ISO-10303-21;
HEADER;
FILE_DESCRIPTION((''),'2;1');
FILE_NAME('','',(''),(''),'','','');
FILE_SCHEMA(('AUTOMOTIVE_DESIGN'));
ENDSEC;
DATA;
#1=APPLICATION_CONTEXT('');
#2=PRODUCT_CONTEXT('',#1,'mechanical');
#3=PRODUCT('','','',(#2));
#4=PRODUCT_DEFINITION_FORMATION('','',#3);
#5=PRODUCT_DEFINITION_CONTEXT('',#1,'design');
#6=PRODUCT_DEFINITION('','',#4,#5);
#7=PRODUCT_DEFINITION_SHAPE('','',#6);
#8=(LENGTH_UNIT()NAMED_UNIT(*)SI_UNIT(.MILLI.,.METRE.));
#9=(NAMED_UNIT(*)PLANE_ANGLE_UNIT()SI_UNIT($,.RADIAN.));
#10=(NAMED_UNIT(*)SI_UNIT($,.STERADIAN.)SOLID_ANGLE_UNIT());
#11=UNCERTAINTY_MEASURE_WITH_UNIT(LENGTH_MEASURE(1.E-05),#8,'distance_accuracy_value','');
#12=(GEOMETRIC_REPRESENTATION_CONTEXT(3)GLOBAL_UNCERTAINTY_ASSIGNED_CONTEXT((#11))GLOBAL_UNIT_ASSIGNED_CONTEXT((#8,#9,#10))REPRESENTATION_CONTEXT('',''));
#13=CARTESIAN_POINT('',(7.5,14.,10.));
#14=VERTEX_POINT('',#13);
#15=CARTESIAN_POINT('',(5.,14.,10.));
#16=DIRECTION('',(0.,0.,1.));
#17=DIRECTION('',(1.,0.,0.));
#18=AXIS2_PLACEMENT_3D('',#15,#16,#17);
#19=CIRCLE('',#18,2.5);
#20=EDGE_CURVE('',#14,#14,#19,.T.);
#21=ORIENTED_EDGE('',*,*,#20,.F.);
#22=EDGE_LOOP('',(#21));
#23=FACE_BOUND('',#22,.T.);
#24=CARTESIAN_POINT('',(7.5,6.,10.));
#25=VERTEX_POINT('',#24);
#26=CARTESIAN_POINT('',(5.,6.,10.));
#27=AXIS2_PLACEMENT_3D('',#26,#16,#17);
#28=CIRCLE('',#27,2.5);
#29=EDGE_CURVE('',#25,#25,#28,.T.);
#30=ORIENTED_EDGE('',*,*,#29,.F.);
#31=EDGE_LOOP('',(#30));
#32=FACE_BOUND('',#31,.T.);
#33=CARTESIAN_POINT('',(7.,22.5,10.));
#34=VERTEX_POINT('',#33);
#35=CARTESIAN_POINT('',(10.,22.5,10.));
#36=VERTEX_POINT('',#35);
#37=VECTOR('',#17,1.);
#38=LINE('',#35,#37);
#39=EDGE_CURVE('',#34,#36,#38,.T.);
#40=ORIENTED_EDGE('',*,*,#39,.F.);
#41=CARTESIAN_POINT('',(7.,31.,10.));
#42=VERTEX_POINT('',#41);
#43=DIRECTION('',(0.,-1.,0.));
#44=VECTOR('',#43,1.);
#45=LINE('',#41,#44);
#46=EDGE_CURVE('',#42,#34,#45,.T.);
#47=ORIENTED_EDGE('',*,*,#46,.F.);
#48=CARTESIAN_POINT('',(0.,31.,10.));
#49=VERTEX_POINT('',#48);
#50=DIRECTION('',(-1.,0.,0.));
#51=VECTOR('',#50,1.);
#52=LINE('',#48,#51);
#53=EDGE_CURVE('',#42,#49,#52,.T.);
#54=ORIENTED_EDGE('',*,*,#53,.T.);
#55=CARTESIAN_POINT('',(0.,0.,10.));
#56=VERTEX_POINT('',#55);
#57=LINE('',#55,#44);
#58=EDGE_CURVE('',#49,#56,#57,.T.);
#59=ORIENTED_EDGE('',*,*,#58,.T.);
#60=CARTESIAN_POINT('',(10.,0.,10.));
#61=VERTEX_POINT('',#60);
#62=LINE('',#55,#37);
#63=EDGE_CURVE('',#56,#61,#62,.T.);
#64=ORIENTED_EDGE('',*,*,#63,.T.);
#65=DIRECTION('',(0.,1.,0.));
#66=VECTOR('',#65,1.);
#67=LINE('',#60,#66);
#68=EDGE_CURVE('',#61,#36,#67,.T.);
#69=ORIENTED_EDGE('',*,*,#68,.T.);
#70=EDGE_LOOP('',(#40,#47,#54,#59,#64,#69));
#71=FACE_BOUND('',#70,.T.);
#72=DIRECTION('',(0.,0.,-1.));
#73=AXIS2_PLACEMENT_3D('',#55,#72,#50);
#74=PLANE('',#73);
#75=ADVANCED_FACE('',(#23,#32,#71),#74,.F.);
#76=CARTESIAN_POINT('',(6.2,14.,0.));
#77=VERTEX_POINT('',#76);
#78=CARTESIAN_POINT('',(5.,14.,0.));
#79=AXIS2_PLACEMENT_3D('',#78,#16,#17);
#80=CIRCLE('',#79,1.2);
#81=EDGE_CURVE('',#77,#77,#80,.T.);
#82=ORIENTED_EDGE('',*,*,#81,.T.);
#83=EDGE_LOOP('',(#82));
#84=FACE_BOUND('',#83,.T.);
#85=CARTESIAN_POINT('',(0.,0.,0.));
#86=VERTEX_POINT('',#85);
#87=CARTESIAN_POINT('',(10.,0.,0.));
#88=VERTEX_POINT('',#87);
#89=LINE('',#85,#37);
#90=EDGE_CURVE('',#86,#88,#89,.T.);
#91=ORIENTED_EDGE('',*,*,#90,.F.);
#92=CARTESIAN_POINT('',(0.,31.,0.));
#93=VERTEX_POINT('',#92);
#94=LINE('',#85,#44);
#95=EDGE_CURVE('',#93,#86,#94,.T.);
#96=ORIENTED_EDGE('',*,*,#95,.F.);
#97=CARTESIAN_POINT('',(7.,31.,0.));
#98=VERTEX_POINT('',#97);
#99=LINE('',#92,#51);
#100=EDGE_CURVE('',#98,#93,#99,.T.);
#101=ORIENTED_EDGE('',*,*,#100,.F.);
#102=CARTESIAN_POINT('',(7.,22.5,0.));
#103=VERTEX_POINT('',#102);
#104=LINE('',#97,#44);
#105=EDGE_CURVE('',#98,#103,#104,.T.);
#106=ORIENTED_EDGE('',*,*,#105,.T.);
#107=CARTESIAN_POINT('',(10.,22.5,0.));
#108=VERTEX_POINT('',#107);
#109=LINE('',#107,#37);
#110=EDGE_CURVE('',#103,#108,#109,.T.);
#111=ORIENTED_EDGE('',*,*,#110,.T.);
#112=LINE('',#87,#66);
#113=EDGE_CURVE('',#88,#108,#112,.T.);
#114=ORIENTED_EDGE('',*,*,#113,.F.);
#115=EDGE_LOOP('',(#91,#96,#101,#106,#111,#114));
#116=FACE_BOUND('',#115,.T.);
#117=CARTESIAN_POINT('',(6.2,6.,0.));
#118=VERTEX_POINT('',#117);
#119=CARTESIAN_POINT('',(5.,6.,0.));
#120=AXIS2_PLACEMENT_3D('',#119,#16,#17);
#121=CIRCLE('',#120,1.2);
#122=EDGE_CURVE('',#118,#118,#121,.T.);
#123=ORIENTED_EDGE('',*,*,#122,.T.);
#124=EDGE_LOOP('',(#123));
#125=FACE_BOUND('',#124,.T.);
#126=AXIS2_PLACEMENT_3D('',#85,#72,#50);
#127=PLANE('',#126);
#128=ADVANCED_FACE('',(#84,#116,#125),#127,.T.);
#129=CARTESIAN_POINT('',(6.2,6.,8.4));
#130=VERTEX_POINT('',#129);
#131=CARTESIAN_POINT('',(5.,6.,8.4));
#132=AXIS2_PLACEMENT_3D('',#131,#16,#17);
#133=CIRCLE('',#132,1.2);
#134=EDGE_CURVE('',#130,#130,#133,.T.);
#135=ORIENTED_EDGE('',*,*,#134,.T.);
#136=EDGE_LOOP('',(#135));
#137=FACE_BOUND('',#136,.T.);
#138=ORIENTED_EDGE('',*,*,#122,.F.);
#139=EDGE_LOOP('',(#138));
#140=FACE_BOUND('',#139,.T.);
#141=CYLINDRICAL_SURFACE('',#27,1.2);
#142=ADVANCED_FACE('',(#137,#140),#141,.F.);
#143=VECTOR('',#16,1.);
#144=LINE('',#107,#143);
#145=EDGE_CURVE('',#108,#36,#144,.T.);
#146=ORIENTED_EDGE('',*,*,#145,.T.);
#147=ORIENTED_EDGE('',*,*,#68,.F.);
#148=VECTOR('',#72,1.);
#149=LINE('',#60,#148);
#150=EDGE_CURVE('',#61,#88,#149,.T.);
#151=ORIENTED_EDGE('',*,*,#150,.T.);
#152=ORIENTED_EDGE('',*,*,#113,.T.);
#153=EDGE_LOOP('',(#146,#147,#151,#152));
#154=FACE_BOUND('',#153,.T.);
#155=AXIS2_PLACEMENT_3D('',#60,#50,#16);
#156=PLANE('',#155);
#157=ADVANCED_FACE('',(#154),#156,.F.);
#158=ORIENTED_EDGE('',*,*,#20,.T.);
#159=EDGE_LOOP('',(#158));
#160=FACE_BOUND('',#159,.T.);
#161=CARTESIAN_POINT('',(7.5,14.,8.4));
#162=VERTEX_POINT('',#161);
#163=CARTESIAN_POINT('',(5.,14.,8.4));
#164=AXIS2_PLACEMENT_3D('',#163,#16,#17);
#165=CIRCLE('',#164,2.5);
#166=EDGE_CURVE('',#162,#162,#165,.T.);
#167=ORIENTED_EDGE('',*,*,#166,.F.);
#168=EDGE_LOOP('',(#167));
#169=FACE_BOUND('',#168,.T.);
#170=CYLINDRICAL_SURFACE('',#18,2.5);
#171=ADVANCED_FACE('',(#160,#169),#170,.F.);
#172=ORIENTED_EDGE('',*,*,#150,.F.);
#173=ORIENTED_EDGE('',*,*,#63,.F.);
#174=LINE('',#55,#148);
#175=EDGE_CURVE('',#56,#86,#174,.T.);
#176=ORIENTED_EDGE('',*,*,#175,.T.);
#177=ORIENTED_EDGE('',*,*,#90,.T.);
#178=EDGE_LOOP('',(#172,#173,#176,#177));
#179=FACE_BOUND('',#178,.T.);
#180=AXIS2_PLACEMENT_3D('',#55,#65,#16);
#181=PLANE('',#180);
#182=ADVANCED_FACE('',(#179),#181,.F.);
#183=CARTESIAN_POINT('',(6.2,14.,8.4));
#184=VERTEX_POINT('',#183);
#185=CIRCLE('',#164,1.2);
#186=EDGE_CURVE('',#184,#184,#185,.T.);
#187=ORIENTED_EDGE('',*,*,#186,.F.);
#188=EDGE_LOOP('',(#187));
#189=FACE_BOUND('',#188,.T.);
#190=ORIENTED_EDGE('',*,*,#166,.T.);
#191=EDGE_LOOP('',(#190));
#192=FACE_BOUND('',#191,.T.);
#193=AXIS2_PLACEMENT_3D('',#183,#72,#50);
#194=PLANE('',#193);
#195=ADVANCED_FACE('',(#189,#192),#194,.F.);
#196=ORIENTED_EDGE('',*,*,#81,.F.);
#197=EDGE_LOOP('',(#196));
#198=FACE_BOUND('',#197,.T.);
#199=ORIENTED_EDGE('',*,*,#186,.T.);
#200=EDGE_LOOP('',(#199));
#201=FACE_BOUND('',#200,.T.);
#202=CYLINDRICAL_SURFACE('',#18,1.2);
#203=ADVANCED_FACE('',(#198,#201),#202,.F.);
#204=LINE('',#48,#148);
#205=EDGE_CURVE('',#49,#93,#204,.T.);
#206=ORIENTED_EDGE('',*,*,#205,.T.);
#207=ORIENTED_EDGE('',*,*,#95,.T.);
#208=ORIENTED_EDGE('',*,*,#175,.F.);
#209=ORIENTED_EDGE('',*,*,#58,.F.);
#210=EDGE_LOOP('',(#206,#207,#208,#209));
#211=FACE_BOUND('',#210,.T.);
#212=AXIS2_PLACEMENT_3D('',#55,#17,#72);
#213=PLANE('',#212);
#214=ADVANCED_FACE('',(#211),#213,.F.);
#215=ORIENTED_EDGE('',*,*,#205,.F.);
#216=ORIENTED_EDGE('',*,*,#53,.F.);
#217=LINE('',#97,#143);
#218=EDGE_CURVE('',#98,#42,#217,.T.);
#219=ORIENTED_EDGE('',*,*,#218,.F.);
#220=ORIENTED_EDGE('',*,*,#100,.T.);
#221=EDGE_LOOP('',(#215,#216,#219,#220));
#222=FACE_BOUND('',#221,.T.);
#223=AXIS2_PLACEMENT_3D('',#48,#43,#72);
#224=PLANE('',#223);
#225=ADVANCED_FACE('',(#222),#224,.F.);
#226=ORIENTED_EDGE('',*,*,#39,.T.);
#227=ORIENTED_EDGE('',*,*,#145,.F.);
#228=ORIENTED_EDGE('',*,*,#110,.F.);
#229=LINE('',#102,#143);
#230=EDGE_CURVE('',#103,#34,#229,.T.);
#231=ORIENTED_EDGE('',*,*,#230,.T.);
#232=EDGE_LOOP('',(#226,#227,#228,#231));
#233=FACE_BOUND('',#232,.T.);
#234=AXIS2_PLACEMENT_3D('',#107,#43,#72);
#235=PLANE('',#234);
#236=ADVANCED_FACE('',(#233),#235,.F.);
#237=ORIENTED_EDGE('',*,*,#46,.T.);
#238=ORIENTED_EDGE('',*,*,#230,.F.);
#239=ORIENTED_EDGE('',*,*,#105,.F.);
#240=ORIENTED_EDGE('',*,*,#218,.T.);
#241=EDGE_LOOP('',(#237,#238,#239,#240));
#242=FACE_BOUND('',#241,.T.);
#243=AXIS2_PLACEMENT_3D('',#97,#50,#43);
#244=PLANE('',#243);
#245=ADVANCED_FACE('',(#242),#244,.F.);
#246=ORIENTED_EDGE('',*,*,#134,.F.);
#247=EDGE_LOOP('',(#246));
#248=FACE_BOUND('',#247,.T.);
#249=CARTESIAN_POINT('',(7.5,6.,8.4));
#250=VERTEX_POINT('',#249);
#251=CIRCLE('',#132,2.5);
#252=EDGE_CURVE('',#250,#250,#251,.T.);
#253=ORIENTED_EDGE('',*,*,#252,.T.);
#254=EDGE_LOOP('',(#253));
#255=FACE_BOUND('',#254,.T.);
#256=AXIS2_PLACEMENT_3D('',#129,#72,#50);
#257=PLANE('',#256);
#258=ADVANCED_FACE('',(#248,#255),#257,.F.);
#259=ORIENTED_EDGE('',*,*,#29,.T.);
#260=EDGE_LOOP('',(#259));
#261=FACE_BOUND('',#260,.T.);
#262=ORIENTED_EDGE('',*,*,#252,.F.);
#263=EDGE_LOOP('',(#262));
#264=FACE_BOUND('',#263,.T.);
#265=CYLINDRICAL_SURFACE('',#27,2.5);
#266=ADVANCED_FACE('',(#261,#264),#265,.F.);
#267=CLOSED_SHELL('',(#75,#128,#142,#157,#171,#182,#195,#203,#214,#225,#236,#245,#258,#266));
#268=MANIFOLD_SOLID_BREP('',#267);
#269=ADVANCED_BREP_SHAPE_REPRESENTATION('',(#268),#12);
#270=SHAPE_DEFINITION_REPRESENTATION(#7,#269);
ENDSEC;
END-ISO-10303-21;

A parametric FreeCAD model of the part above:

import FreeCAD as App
import Part
import Sketcher
from FreeCAD import Vector

doc = App.newDocument("Part")
body = doc.addObject("PartDesign::Body", "Body")

sketch1 = body.newObject("Sketcher::SketchObject", "Sketch")
sketch1.AttachmentSupport = (doc.getObject("XY_Plane"), [""])
sketch1.MapMode = "FlatFace"
sketch1.addGeometry([
    Part.LineSegment(Vector(0, 31, 0), Vector(0, 0, 0)),
    Part.LineSegment(Vector(0, 0, 0), Vector(10, 0, 0)),
    Part.LineSegment(Vector(10, 0, 0), Vector(10, 31, 0)),
    Part.LineSegment(Vector(10, 31, 0), Vector(0, 31, 0)),
], False)
sketch1.addConstraint([
    Sketcher.Constraint("Coincident", 0, 2, 1, 1),
    Sketcher.Constraint("Coincident", 1, 2, 2, 1),
    Sketcher.Constraint("Coincident", 2, 2, 3, 1),
    Sketcher.Constraint("Coincident", 3, 2, 0, 1),
    Sketcher.Constraint("Vertical", 0),
    Sketcher.Constraint("Horizontal", 1),
    Sketcher.Constraint("Vertical", 2),
    Sketcher.Constraint("Horizontal", 3),
    Sketcher.Constraint("Coincident", 0, 2, -1, 1),
    Sketcher.Constraint("DistanceX", 1, 1, 1, 2, 10.0),
    Sketcher.Constraint("DistanceY", 0, 2, 0, 1, 31.0),
])
pad1 = body.newObject("PartDesign::Pad", "Pad")
pad1.Profile = sketch1
pad1.Length = 10

sketch2 = body.newObject("Sketcher::SketchObject", "Sketch001")
sketch2.AttachmentSupport = (doc.getObject("XY_Plane"), [""])
sketch2.MapMode = "FlatFace"
sketch2.AttachmentOffset = App.Placement(Vector(0, 0, 10), App.Rotation())
sketch2.addGeometry([
    Part.LineSegment(Vector(7, 31, 0), Vector(7, 22.5, 0)),
    Part.LineSegment(Vector(7, 22.5, 0), Vector(10, 22.5, 0)),
    Part.LineSegment(Vector(10, 22.5, 0), Vector(10, 31, 0)),
    Part.LineSegment(Vector(10, 31, 0), Vector(7, 31, 0)),
], False)
sketch2.addConstraint([
    Sketcher.Constraint("Coincident", 0, 2, 1, 1),
    Sketcher.Constraint("Coincident", 1, 2, 2, 1),
    Sketcher.Constraint("Coincident", 2, 2, 3, 1),
    Sketcher.Constraint("Coincident", 3, 2, 0, 1),
    Sketcher.Constraint("Vertical", 0),
    Sketcher.Constraint("Horizontal", 1),
    Sketcher.Constraint("Vertical", 2),
    Sketcher.Constraint("Horizontal", 3),
    Sketcher.Constraint("DistanceX", 1, 1, 1, 2, 3.0),
    Sketcher.Constraint("DistanceY", 0, 2, 0, 1, 8.5),
    Sketcher.Constraint("DistanceX", -1, 1, 0, 2, 7.0),
    Sketcher.Constraint("DistanceY", -1, 1, 2, 2, 31.0),
])
pocket1 = body.newObject("PartDesign::Pocket", "Pocket")
pocket1.Profile = sketch2
pocket1.Length = 10

sketch3 = body.newObject("Sketcher::SketchObject", "Sketch002")
sketch3.AttachmentSupport = (doc.getObject("XY_Plane"), [""])
sketch3.MapMode = "FlatFace"
sketch3.AttachmentOffset = App.Placement(Vector(0, 0, 10), App.Rotation())
sketch3.addGeometry([
    Part.Circle(Vector(5, 14, 0), Vector(0, 0, 1), 1.2),
    Part.Circle(Vector(5, 6, 0), Vector(0, 0, 1), 1.2),
], False)
sketch3.addConstraint([
    Sketcher.Constraint("Equal", 0, 1),
    Sketcher.Constraint("Vertical", 0, 3, 1, 3),
    Sketcher.Constraint("Diameter", 0, 2.4),
    Sketcher.Constraint("DistanceX", -1, 1, 0, 3, 5.0),
    Sketcher.Constraint("DistanceY", -1, 1, 0, 3, 14.0),
    Sketcher.Constraint("DistanceY", -1, 1, 1, 3, 6.0),
])
doc.recompute()
hole = body.newObject("PartDesign::Hole", "Hole")
hole.Profile = sketch3
hole.ThreadType = "None"
hole.Diameter = 2.4
hole.DepthType = "Dimension"
hole.Depth = 10
hole.DrillPoint = "Angled"
hole.DrillPointAngle = 118
hole.HoleCutType = "Counterbore"
hole.HoleCutDiameter = 5
hole.HoleCutDepth = 1.6

doc.recompute()
